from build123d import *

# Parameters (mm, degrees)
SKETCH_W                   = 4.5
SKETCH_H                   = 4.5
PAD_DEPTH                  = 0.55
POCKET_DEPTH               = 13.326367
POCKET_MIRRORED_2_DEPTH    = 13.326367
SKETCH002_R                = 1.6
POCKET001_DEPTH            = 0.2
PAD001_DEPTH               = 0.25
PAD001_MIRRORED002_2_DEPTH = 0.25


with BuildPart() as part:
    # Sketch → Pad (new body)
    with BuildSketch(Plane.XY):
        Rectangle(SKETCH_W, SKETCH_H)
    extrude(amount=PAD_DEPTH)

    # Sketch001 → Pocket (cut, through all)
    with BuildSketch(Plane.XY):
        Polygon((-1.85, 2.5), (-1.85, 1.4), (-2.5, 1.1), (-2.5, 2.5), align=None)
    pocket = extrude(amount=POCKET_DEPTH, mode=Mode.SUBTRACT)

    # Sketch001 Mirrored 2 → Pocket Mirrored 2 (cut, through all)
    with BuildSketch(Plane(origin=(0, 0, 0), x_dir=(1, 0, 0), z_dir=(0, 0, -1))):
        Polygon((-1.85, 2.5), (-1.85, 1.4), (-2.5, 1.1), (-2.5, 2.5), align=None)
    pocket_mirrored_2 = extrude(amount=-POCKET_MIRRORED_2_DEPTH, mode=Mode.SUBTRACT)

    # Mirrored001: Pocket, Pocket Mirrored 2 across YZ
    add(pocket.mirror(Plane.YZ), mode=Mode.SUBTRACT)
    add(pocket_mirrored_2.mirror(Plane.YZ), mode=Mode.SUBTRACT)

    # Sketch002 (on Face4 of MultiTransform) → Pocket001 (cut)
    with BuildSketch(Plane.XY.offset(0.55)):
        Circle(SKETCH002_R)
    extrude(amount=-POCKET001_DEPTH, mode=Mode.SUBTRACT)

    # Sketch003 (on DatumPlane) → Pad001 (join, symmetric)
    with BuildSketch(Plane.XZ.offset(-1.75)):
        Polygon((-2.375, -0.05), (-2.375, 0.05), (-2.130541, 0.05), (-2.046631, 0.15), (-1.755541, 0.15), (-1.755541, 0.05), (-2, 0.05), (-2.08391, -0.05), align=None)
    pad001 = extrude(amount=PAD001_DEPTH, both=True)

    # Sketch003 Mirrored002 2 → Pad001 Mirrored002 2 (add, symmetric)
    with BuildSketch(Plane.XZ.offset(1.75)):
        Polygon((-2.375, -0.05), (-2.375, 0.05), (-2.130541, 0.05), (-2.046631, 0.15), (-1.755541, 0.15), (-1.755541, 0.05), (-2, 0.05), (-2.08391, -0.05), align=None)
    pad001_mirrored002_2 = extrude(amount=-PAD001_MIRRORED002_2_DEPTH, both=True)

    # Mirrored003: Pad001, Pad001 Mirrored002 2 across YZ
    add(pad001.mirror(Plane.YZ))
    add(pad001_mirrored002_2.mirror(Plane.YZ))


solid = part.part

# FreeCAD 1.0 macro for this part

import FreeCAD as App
import Part
import Sketcher
Q = App.Units.Quantity

doc = App.newDocument("Part")
body = doc.addObject("PartDesign::Body", "Body")

# Sketch on XY plane
sketch1 = body.newObject("Sketcher::SketchObject", "Sketch")
sketch1.AttachmentSupport = (doc.getObject("XY_Plane"), [""])
sketch1.MapMode = "FlatFace"
sketch1.addGeometry([
    Part.LineSegment(App.Vector(-2.2, 2.2, 0), App.Vector(-2.2, -2.2, 0)),
    Part.LineSegment(App.Vector(-2.2, -2.2, 0), App.Vector(2.2, -2.2, 0)),
    Part.LineSegment(App.Vector(2.2, -2.2, 0), App.Vector(2.2, 2.2, 0)),
    Part.LineSegment(App.Vector(2.2, 2.2, 0), App.Vector(-2.2, 2.2, 0)),
], False)
sketch1.addConstraint([
    Sketcher.Constraint("Coincident", 0, 2, 1, 1),
    Sketcher.Constraint("Coincident", 1, 2, 2, 1),
    Sketcher.Constraint("Coincident", 2, 2, 3, 1),
    Sketcher.Constraint("Coincident", 3, 2, 0, 1),
    Sketcher.Constraint("Vertical", 0),
    Sketcher.Constraint("Horizontal", 1),
    Sketcher.Constraint("Vertical", 2),
    Sketcher.Constraint("Horizontal", 3),
    Sketcher.Constraint("Symmetric", 0, 2, 2, 2, -1, 1),
    Sketcher.Constraint("Equal", 3, 0),
    Sketcher.Constraint("DistanceX", 1, 1, 1, 2, 4.5),
])
pad1 = body.newObject("PartDesign::Pad", "Pad")
pad1.Profile = sketch1
pad1.Length = 0.55

# Sketch on XY plane
sketch2 = body.newObject("Sketcher::SketchObject", "Sketch001")
sketch2.AttachmentSupport = (doc.getObject("XY_Plane"), [""])
sketch2.MapMode = "FlatFace"
sketch2.addGeometry([
    Part.LineSegment(App.Vector(-1.9, 1.4, 0), App.Vector(-1.9, 2.5, 0)),
    Part.LineSegment(App.Vector(-1.9, 2.5, 0), App.Vector(-2.5, 2.5, 0)),
    Part.LineSegment(App.Vector(-2.5, 2.5, 0), App.Vector(-2.5, 1.1, 0)),
    Part.LineSegment(App.Vector(-2.5, 1.1, 0), App.Vector(-1.9, 1.4, 0)),
], False)
sketch2.addConstraint([
    Sketcher.Constraint("Coincident", 0, 2, 1, 1),
    Sketcher.Constraint("Coincident", 1, 2, 2, 1),
    Sketcher.Constraint("Coincident", 2, 2, 3, 1),
    Sketcher.Constraint("Coincident", 3, 2, 0, 1),
    Sketcher.Constraint("Vertical", 0),
    Sketcher.Constraint("Horizontal", 1),
    Sketcher.Constraint("Vertical", 2),
    Sketcher.Constraint("DistanceY", 0, 1, 0, 2, 1.1),
    Sketcher.Constraint("DistanceY", 2, 2, 2, 1, 1.4),
    Sketcher.Constraint("DistanceX", 1, 2, 1, 1, 0.65),
    Sketcher.Constraint("DistanceY", -1, 1, 0, 2, 2.5),
    Sketcher.Constraint("DistanceX", 1, 2, -1, 1, 2.5),
])
pocket1 = body.newObject("PartDesign::Pocket", "Pocket")
pocket1.Profile = sketch2
pocket1.Type = "ThroughAll"
pocket1.Reversed = True

# Sketch on XY plane
sketch3 = body.newObject("Sketcher::SketchObject", "Sketch002")
sketch3.AttachmentSupport = (doc.getObject("XY_Plane"), [""])
sketch3.MapMode = "FlatFace"
sketch3.addGeometry([
    Part.LineSegment(App.Vector(-1.9, -1.4, 0), App.Vector(-1.9, -2.5, 0)),
    Part.LineSegment(App.Vector(-1.9, -2.5, 0), App.Vector(-2.5, -2.5, 0)),
    Part.LineSegment(App.Vector(-2.5, -2.5, 0), App.Vector(-2.5, -1.1, 0)),
    Part.LineSegment(App.Vector(-2.5, -1.1, 0), App.Vector(-1.9, -1.4, 0)),
], False)
sketch3.addConstraint([
    Sketcher.Constraint("Coincident", 0, 2, 1, 1),
    Sketcher.Constraint("Coincident", 1, 2, 2, 1),
    Sketcher.Constraint("Coincident", 2, 2, 3, 1),
    Sketcher.Constraint("Coincident", 3, 2, 0, 1),
    Sketcher.Constraint("Vertical", 0),
    Sketcher.Constraint("Horizontal", 1),
    Sketcher.Constraint("Vertical", 2),
    Sketcher.Constraint("DistanceY", 0, 2, 0, 1, 1.1),
    Sketcher.Constraint("DistanceY", 2, 1, 2, 2, 1.4),
    Sketcher.Constraint("DistanceX", 1, 2, 1, 1, 0.65),
    Sketcher.Constraint("DistanceY", 0, 2, -1, 1, 2.5),
    Sketcher.Constraint("DistanceX", 1, 2, -1, 1, 2.5),
])
pocket2 = body.newObject("PartDesign::Pocket", "Pocket001")
pocket2.Profile = sketch3
pocket2.Type = "ThroughAll"
pocket2.Reversed = True
doc.recompute()

mirrored = body.newObject("PartDesign::Mirrored", "Mirrored")
mirrored.Originals = [pocket1, pocket2]
mirrored.MirrorPlane = (doc.getObject("YZ_Plane"), [""])
body.Tip = mirrored

# Sketch on XY plane
sketch4 = body.newObject("Sketcher::SketchObject", "Sketch003")
sketch4.AttachmentSupport = (doc.getObject("XY_Plane"), [""])
sketch4.MapMode = "FlatFace"
sketch4.AttachmentOffset = App.Placement(App.Vector(0, 0, 0.55), App.Rotation())
sketch4.addGeometry(Part.Circle(App.Vector(0, 0, 0), App.Vector(0, 0, 1), 1.6), False)
sketch4.addConstraint([
    Sketcher.Constraint("Coincident", 0, 3, -1, 1),
    Sketcher.Constraint("Diameter", 0, 3.2),
])
pocket3 = body.newObject("PartDesign::Pocket", "Pocket002")
pocket3.Profile = sketch4
pocket3.Length = 0.2

# Sketch on XZ plane
sketch5 = body.newObject("Sketcher::SketchObject", "Sketch004")
sketch5.AttachmentSupport = (doc.getObject("XZ_Plane"), [""])
sketch5.MapMode = "FlatFace"
sketch5.AttachmentOffset = App.Placement(App.Vector(0, 0, -1.75), App.Rotation())
sketch5.addGeometry([
    Part.LineSegment(App.Vector(-2.38, 0.05, 0), App.Vector(-2.38, -0.05, 0)),  # 0
    Part.LineSegment(App.Vector(-2.38, -0.05, 0), App.Vector(-2.08, -0.05, 0)),  # 1
    Part.LineSegment(App.Vector(-2.08, -0.05, 0), App.Vector(-2, 0.05, 0)),  # 2
    Part.LineSegment(App.Vector(-2, 0.05, 0), App.Vector(-1.76, 0.05, 0)),  # 3
    Part.LineSegment(App.Vector(-1.76, 0.05, 0), App.Vector(-1.76, 0.15, 0)),  # 4
    Part.LineSegment(App.Vector(-1.76, 0.15, 0), App.Vector(-2.05, 0.15, 0)),  # 5
    Part.LineSegment(App.Vector(-2.05, 0.15, 0), App.Vector(-2.13, 0.05, 0)),  # 6
    Part.LineSegment(App.Vector(-2.13, 0.05, 0), App.Vector(-2.38, 0.05, 0)),  # 7
], False)
sketch5.addConstraint([
    Sketcher.Constraint("Coincident", 0, 2, 1, 1),
    Sketcher.Constraint("Coincident", 1, 2, 2, 1),
    Sketcher.Constraint("Coincident", 2, 2, 3, 1),
    Sketcher.Constraint("Coincident", 3, 2, 4, 1),
    Sketcher.Constraint("Coincident", 4, 2, 5, 1),
    Sketcher.Constraint("Coincident", 5, 2, 6, 1),
    Sketcher.Constraint("Coincident", 6, 2, 7, 1),
    Sketcher.Constraint("Coincident", 7, 2, 0, 1),
    Sketcher.Constraint("Vertical", 0),
    Sketcher.Constraint("Horizontal", 1),
    Sketcher.Constraint("Horizontal", 3),
    Sketcher.Constraint("Vertical", 4),
    Sketcher.Constraint("Horizontal", 5),
    Sketcher.Constraint("Horizontal", 7),
    Sketcher.Constraint("Parallel", 2, 6),
    Sketcher.Constraint("Horizontal", 3, 2, 6, 2),
    Sketcher.Constraint("Equal", 1, 5),
    Sketcher.Constraint("Equal", 3, 7),
    Sketcher.Constraint("Angle", 2, Q("49.999988 deg")),
    Sketcher.Constraint("DistanceY", 0, 2, 0, 1, 0.1),
    Sketcher.Constraint("DistanceX", 2, 2, -1, 1, 2.0),
    Sketcher.Constraint("DistanceY", 0, 2, -1, 1, 0.05),
    Sketcher.Constraint("DistanceX", 0, 2, -1, 1, 2.375),
    Sketcher.Constraint("DistanceX", 3, 1, 3, 2, 0.244459),
])
pad2 = body.newObject("PartDesign::Pad", "Pad001")
pad2.Profile = sketch5
pad2.Length = 0.5
pad2.Midplane = True

# Sketch on XZ plane
sketch6 = body.newObject("Sketcher::SketchObject", "Sketch005")
sketch6.AttachmentSupport = (doc.getObject("XZ_Plane"), [""])
sketch6.MapMode = "FlatFace"
sketch6.AttachmentOffset = App.Placement(App.Vector(0, 0, 1.75), App.Rotation())
sketch6.addGeometry([
    Part.LineSegment(App.Vector(-2.38, 0.05, 0), App.Vector(-2.38, -0.05, 0)),  # 0
    Part.LineSegment(App.Vector(-2.38, -0.05, 0), App.Vector(-2.08, -0.05, 0)),  # 1
    Part.LineSegment(App.Vector(-2.08, -0.05, 0), App.Vector(-2, 0.05, 0)),  # 2
    Part.LineSegment(App.Vector(-2, 0.05, 0), App.Vector(-1.76, 0.05, 0)),  # 3
    Part.LineSegment(App.Vector(-1.76, 0.05, 0), App.Vector(-1.76, 0.15, 0)),  # 4
    Part.LineSegment(App.Vector(-1.76, 0.15, 0), App.Vector(-2.05, 0.15, 0)),  # 5
    Part.LineSegment(App.Vector(-2.05, 0.15, 0), App.Vector(-2.13, 0.05, 0)),  # 6
    Part.LineSegment(App.Vector(-2.13, 0.05, 0), App.Vector(-2.38, 0.05, 0)),  # 7
], False)
sketch6.addConstraint([
    Sketcher.Constraint("Coincident", 0, 2, 1, 1),
    Sketcher.Constraint("Coincident", 1, 2, 2, 1),
    Sketcher.Constraint("Coincident", 2, 2, 3, 1),
    Sketcher.Constraint("Coincident", 3, 2, 4, 1),
    Sketcher.Constraint("Coincident", 4, 2, 5, 1),
    Sketcher.Constraint("Coincident", 5, 2, 6, 1),
    Sketcher.Constraint("Coincident", 6, 2, 7, 1),
    Sketcher.Constraint("Coincident", 7, 2, 0, 1),
    Sketcher.Constraint("Vertical", 0),
    Sketcher.Constraint("Horizontal", 1),
    Sketcher.Constraint("Horizontal", 3),
    Sketcher.Constraint("Vertical", 4),
    Sketcher.Constraint("Horizontal", 5),
    Sketcher.Constraint("Horizontal", 7),
    Sketcher.Constraint("Parallel", 2, 6),
    Sketcher.Constraint("Horizontal", 3, 2, 6, 2),
    Sketcher.Constraint("Equal", 1, 5),
    Sketcher.Constraint("Equal", 3, 7),
    Sketcher.Constraint("Angle", 2, Q("49.999988 deg")),
    Sketcher.Constraint("DistanceY", 0, 2, 0, 1, 0.1),
    Sketcher.Constraint("DistanceX", 2, 2, -1, 1, 2.0),
    Sketcher.Constraint("DistanceY", 0, 2, -1, 1, 0.05),
    Sketcher.Constraint("DistanceX", 0, 2, -1, 1, 2.375),
    Sketcher.Constraint("DistanceX", 3, 1, 3, 2, 0.244459),
])
pad3 = body.newObject("PartDesign::Pad", "Pad002")
pad3.Profile = sketch6
pad3.Length = 0.5
pad3.Midplane = True
doc.recompute()

mirrored2 = body.newObject("PartDesign::Mirrored", "Mirrored001")
mirrored2.Originals = [pad2, pad3]
mirrored2.MirrorPlane = (doc.getObject("YZ_Plane"), [""])
body.Tip = mirrored2

doc.recompute()
